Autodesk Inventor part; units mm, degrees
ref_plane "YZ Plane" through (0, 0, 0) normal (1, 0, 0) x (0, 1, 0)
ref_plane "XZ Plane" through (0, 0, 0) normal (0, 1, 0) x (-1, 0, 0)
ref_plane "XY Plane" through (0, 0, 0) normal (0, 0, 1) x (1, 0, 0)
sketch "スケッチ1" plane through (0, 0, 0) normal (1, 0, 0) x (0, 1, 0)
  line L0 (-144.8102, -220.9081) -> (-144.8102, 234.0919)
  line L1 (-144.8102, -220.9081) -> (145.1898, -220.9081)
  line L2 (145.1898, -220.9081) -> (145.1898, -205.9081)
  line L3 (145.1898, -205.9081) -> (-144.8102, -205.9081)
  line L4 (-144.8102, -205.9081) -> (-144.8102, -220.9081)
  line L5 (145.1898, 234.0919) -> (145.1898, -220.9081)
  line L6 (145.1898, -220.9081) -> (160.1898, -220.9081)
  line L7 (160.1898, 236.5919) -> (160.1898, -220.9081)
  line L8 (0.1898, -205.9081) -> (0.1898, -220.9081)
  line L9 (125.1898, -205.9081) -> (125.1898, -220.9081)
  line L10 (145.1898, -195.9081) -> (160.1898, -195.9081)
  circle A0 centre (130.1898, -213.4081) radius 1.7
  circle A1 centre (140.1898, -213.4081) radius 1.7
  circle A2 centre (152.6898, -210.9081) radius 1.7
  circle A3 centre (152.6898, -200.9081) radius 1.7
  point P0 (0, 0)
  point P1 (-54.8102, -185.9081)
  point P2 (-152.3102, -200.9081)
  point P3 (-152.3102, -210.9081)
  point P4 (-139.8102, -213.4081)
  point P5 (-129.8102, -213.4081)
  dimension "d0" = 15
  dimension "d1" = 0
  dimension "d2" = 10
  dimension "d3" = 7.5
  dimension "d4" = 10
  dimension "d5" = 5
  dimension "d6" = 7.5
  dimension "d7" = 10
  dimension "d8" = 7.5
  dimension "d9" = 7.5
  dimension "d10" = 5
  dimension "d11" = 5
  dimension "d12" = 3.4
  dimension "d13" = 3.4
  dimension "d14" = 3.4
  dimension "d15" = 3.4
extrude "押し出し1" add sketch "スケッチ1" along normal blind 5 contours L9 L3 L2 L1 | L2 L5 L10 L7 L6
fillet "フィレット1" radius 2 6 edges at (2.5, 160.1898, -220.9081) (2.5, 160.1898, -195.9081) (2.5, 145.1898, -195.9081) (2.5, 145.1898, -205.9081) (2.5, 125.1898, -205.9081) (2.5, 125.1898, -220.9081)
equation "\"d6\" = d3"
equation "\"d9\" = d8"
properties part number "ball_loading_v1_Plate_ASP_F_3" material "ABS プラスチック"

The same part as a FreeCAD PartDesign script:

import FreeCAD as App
import Part
import Sketcher
Q = App.Units.Quantity


def edges_at(feature, points):
    """Names of the edges that pass closest to the given points."""
    edges = feature.Shape.Edges
    near = lambda p: min(range(len(edges)), key=lambda i: edges[i].distToShape(Part.Vertex(*p))[0])
    return sorted({f"Edge{near(p) + 1}" for p in points})

doc = App.newDocument("Part")
body = doc.addObject("PartDesign::Body", "Body")

# Sketch on YZ plane
sketch1 = doc.addObject("Sketcher::SketchObject", "Sketch")
body.addObject(sketch1)
sketch1.AttachmentSupport = (doc.YZ_Plane, [""])
sketch1.MapMode = "FlatFace"
sketch1.addGeometry(Part.LineSegment(App.Vector(125.2, -205.9, 0), App.Vector(125.2, -220.9, 0)), False)
sketch1.addGeometry(Part.LineSegment(App.Vector(125.2, -220.9, 0), App.Vector(160.2, -220.9, 0)), False)
sketch1.addGeometry(Part.LineSegment(App.Vector(160.2, -220.9, 0), App.Vector(160.2, -195.9, 0)), False)
sketch1.addGeometry(Part.LineSegment(App.Vector(160.2, -195.9, 0), App.Vector(145.2, -195.9, 0)), False)
sketch1.addGeometry(Part.LineSegment(App.Vector(145.2, -195.9, 0), App.Vector(145.2, -205.9, 0)), False)
sketch1.addGeometry(Part.LineSegment(App.Vector(145.2, -205.9, 0), App.Vector(125.2, -205.9, 0)), False)
sketch1.addGeometry(Part.Circle(App.Vector(130.2, -213.4, 0), App.Vector(0, 0, 1), 1.7), False)
sketch1.addGeometry(Part.Circle(App.Vector(140.2, -213.4, 0), App.Vector(0, 0, 1), 1.7), False)
sketch1.addGeometry(Part.Circle(App.Vector(152.7, -200.9, 0), App.Vector(0, 0, 1), 1.7), False)
sketch1.addGeometry(Part.Circle(App.Vector(152.7, -210.9, 0), App.Vector(0, 0, 1), 1.7), False)
sketch1.addConstraint(Sketcher.Constraint("Coincident", 0, 2, 1, 1))
sketch1.addConstraint(Sketcher.Constraint("Coincident", 1, 2, 2, 1))
sketch1.addConstraint(Sketcher.Constraint("Coincident", 2, 2, 3, 1))
sketch1.addConstraint(Sketcher.Constraint("Coincident", 3, 2, 4, 1))
sketch1.addConstraint(Sketcher.Constraint("Coincident", 4, 2, 5, 1))
sketch1.addConstraint(Sketcher.Constraint("Coincident", 5, 2, 0, 1))
sketch1.addConstraint(Sketcher.Constraint("Vertical", 0))
sketch1.addConstraint(Sketcher.Constraint("Horizontal", 1))
sketch1.addConstraint(Sketcher.Constraint("Vertical", 2))
sketch1.addConstraint(Sketcher.Constraint("Horizontal", 3))
sketch1.addConstraint(Sketcher.Constraint("Vertical", 4))
sketch1.addConstraint(Sketcher.Constraint("Horizontal", 5))
sketch1.addConstraint(Sketcher.Constraint("Equal", 6, 7))
sketch1.addConstraint(Sketcher.Constraint("Equal", 7, 8))
sketch1.addConstraint(Sketcher.Constraint("Equal", 8, 9))
sketch1.addConstraint(Sketcher.Constraint("Horizontal", 6, 3, 7, 3))
sketch1.addConstraint(Sketcher.Constraint("Vertical", 8, 3, 9, 3))
sketch1.addConstraint(Sketcher.Constraint("Equal", 3, 0))
sketch1.addConstraint(Sketcher.Constraint("Diameter", 6, Q("3.4 mm")))
sketch1.addConstraint(Sketcher.Constraint("DistanceX", 3, 2, 3, 1, Q("15 mm")))
sketch1.addConstraint(Sketcher.Constraint("DistanceY", 4, 2, 4, 1, Q("10 mm")))
sketch1.addConstraint(Sketcher.Constraint("DistanceX", 6, 3, 7, 3, Q("10 mm")))
sketch1.addConstraint(Sketcher.Constraint("DistanceY", 9, 3, 8, 3, Q("10 mm")))
sketch1.addConstraint(Sketcher.Constraint("DistanceX", 0, 2, 6, 3, Q("5 mm")))
sketch1.addConstraint(Sketcher.Constraint("DistanceY", 0, 2, 9, 3, Q("10 mm")))
sketch1.addConstraint(Sketcher.Constraint("DistanceX", 7, 3, 3, 2, Q("5 mm")))
sketch1.addConstraint(Sketcher.Constraint("DistanceY", 0, 2, 6, 3, Q("7.5 mm")))
sketch1.addConstraint(Sketcher.Constraint("DistanceX", 9, 3, 1, 2, Q("7.5 mm")))
sketch1.addConstraint(Sketcher.Constraint("DistanceY", 6, 3, -1, 1, Q("213.408 mm")))
sketch1.addConstraint(Sketcher.Constraint("DistanceX", -1, 1, 6, 3, Q("130.1898 mm")))
pad1 = doc.addObject("PartDesign::Pad", "Pad")
body.addObject(pad1)
pad1.Profile = sketch1
pad1.Length = 5
doc.recompute()

fillet = doc.addObject("PartDesign::Fillet", "Fillet")
body.addObject(fillet)
fillet.Base = (pad1, edges_at(pad1, [
    (2.5, 160.19, -220.908),
    (2.5, 160.19, -195.908),
    (2.5, 145.19, -195.908),
    (2.5, 145.19, -205.908),
    (2.5, 125.19, -205.908),
    (2.5, 125.19, -220.908),
]))
fillet.Radius = 2

doc.recompute()
